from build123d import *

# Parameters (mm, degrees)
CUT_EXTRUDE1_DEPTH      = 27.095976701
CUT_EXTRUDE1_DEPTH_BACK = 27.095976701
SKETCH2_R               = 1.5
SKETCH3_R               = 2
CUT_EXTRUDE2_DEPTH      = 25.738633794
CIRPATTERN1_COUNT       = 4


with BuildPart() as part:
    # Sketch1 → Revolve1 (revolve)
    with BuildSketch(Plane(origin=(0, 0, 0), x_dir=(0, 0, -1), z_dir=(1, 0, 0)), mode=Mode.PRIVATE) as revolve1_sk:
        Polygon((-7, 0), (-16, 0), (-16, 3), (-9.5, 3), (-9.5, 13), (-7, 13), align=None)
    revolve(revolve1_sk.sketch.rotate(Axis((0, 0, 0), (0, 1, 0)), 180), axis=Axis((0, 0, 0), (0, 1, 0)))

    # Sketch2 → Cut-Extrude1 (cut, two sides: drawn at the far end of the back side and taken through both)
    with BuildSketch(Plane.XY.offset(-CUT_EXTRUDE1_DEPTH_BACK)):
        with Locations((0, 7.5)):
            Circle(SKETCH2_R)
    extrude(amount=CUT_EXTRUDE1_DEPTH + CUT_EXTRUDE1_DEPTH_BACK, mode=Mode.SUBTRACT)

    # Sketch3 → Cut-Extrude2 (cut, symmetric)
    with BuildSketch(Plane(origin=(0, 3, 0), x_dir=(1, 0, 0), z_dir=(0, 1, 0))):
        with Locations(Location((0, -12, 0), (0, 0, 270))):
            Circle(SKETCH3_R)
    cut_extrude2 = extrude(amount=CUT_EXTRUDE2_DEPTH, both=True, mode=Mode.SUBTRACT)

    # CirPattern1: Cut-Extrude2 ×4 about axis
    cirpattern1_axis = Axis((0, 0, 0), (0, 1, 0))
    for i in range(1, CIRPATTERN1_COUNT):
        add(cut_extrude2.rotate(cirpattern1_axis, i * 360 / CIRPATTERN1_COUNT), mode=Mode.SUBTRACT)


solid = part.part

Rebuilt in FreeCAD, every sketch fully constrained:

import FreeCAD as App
import Part
import Sketcher


def add_polygon(sketch, points):
    """Adds a closed chain of lines whose ends are joined by coincident constraints."""
    first, n = sketch.GeometryCount, len(points)
    for a, b in zip(points, points[1:] + points[:1]):
        sketch.addGeometry(Part.LineSegment(App.Vector(*a, 0), App.Vector(*b, 0)), False)
    for i in range(n):
        sketch.addConstraint(Sketcher.Constraint("Coincident", first + i, 2, first + (i + 1) % n, 1))

doc = App.newDocument("Part")
params = doc.addObject("Spreadsheet::Sheet", "Params")
for row, (alias, value) in enumerate([
    ("sketch1_width", "13 mm"),
    ("sketch1_width2", "10 mm"),
    ("sketch1_height", "9 mm"),
    ("sketch1_height2", "2.5 mm"),
    ("revolution_angle", "360 deg"),
    ("sketch2_diameter", "3 mm"),
    ("sketch3_diameter", "4 mm"),
    ("pocket2_length", "51.477268 mm"),
], start=1):
    params.set(f"A{row}", alias)
    params.set(f"B{row}", "=" + value)
    params.setAlias(f"B{row}", alias)

body = doc.addObject("PartDesign::Body", "Body")

# Sketch on YZ plane
sketch1 = body.newObject("Sketcher::SketchObject", "Sketch")
sketch1.AttachmentSupport = (doc.getObject("YZ_Plane"), [""])
sketch1.MapMode = "FlatFace"
add_polygon(sketch1, [(0, 16), (0, 7), (13, 7), (13, 9.5), (3, 9.5), (3, 16)])  # lines 0-5
sketch1.addConstraint([
    Sketcher.Constraint("Vertical", 0),
    Sketcher.Constraint("Horizontal", 1),
    Sketcher.Constraint("Vertical", 2),
    Sketcher.Constraint("Horizontal", 3),
    Sketcher.Constraint("Vertical", 4),
    Sketcher.Constraint("Horizontal", 5),
    Sketcher.Constraint("PointOnObject", 0, 2, -2),
    Sketcher.Constraint("DistanceX", 1, 1, 1, 2, 13.0),
    Sketcher.Constraint("DistanceX", 3, 2, 3, 1, 10.0),
    Sketcher.Constraint("DistanceY", 0, 2, 0, 1, 9.0),
    Sketcher.Constraint("DistanceY", 2, 1, 2, 2, 2.5),
    Sketcher.Constraint("DistanceY", -1, 1, 0, 2, 7.0),
])
sketch1.setExpression("Constraints[13]", "Params.sketch1_width")
sketch1.setExpression("Constraints[14]", "Params.sketch1_width2")
sketch1.setExpression("Constraints[15]", "Params.sketch1_height")
sketch1.setExpression("Constraints[16]", "Params.sketch1_height2")
revolution = body.newObject("PartDesign::Revolution", "Revolution")
revolution.Profile = sketch1
revolution.ReferenceAxis = (sketch1, ["H_Axis"])
revolution.setExpression("Angle", "Params.revolution_angle")

# Sketch on XY plane
sketch2 = body.newObject("Sketcher::SketchObject", "Sketch001")
sketch2.AttachmentSupport = (doc.getObject("XY_Plane"), [""])
sketch2.MapMode = "FlatFace"
sketch2.addGeometry(Part.Circle(App.Vector(0, 7.5, 0), App.Vector(0, 0, 1), 1.5), False)
sketch2.addConstraint([
    Sketcher.Constraint("PointOnObject", 0, 3, -2),
    Sketcher.Constraint("Diameter", 0, 3.0),
    Sketcher.Constraint("DistanceY", -1, 1, 0, 3, 7.5),
])
sketch2.setExpression("Constraints[1]", "Params.sketch2_diameter")
pocket1 = body.newObject("PartDesign::Pocket", "Pocket")
pocket1.Profile = sketch2
pocket1.Type = "ThroughAll"
pocket1.Midplane = True

# Sketch on XZ plane
sketch3 = body.newObject("Sketcher::SketchObject", "Sketch002")
sketch3.AttachmentSupport = (doc.getObject("XZ_Plane"), [""])
sketch3.MapMode = "FlatFace"
sketch3.AttachmentOffset = App.Placement(App.Vector(0, 0, -3), App.Rotation())
sketch3.addGeometry(Part.Circle(App.Vector(0, 12, 0), App.Vector(0, 0, 1), 2), False)
sketch3.addConstraint([
    Sketcher.Constraint("PointOnObject", 0, 3, -2),
    Sketcher.Constraint("Diameter", 0, 4.0),
    Sketcher.Constraint("DistanceY", -1, 1, 0, 3, 12.0),
])
sketch3.setExpression("Constraints[1]", "Params.sketch3_diameter")
pocket2 = body.newObject("PartDesign::Pocket", "Pocket001")
pocket2.Profile = sketch3
pocket2.setExpression("Length", "Params.pocket2_length")
pocket2.Midplane = True
doc.recompute()

polarpattern = body.newObject("PartDesign::PolarPattern", "PolarPattern")
polarpattern.Originals = [pocket2]
polarpattern.Axis = (doc.getObject("Y_Axis"), [""])
polarpattern.Angle = 360
polarpattern.Occurrences = 4
body.Tip = polarpattern

doc.recompute()
